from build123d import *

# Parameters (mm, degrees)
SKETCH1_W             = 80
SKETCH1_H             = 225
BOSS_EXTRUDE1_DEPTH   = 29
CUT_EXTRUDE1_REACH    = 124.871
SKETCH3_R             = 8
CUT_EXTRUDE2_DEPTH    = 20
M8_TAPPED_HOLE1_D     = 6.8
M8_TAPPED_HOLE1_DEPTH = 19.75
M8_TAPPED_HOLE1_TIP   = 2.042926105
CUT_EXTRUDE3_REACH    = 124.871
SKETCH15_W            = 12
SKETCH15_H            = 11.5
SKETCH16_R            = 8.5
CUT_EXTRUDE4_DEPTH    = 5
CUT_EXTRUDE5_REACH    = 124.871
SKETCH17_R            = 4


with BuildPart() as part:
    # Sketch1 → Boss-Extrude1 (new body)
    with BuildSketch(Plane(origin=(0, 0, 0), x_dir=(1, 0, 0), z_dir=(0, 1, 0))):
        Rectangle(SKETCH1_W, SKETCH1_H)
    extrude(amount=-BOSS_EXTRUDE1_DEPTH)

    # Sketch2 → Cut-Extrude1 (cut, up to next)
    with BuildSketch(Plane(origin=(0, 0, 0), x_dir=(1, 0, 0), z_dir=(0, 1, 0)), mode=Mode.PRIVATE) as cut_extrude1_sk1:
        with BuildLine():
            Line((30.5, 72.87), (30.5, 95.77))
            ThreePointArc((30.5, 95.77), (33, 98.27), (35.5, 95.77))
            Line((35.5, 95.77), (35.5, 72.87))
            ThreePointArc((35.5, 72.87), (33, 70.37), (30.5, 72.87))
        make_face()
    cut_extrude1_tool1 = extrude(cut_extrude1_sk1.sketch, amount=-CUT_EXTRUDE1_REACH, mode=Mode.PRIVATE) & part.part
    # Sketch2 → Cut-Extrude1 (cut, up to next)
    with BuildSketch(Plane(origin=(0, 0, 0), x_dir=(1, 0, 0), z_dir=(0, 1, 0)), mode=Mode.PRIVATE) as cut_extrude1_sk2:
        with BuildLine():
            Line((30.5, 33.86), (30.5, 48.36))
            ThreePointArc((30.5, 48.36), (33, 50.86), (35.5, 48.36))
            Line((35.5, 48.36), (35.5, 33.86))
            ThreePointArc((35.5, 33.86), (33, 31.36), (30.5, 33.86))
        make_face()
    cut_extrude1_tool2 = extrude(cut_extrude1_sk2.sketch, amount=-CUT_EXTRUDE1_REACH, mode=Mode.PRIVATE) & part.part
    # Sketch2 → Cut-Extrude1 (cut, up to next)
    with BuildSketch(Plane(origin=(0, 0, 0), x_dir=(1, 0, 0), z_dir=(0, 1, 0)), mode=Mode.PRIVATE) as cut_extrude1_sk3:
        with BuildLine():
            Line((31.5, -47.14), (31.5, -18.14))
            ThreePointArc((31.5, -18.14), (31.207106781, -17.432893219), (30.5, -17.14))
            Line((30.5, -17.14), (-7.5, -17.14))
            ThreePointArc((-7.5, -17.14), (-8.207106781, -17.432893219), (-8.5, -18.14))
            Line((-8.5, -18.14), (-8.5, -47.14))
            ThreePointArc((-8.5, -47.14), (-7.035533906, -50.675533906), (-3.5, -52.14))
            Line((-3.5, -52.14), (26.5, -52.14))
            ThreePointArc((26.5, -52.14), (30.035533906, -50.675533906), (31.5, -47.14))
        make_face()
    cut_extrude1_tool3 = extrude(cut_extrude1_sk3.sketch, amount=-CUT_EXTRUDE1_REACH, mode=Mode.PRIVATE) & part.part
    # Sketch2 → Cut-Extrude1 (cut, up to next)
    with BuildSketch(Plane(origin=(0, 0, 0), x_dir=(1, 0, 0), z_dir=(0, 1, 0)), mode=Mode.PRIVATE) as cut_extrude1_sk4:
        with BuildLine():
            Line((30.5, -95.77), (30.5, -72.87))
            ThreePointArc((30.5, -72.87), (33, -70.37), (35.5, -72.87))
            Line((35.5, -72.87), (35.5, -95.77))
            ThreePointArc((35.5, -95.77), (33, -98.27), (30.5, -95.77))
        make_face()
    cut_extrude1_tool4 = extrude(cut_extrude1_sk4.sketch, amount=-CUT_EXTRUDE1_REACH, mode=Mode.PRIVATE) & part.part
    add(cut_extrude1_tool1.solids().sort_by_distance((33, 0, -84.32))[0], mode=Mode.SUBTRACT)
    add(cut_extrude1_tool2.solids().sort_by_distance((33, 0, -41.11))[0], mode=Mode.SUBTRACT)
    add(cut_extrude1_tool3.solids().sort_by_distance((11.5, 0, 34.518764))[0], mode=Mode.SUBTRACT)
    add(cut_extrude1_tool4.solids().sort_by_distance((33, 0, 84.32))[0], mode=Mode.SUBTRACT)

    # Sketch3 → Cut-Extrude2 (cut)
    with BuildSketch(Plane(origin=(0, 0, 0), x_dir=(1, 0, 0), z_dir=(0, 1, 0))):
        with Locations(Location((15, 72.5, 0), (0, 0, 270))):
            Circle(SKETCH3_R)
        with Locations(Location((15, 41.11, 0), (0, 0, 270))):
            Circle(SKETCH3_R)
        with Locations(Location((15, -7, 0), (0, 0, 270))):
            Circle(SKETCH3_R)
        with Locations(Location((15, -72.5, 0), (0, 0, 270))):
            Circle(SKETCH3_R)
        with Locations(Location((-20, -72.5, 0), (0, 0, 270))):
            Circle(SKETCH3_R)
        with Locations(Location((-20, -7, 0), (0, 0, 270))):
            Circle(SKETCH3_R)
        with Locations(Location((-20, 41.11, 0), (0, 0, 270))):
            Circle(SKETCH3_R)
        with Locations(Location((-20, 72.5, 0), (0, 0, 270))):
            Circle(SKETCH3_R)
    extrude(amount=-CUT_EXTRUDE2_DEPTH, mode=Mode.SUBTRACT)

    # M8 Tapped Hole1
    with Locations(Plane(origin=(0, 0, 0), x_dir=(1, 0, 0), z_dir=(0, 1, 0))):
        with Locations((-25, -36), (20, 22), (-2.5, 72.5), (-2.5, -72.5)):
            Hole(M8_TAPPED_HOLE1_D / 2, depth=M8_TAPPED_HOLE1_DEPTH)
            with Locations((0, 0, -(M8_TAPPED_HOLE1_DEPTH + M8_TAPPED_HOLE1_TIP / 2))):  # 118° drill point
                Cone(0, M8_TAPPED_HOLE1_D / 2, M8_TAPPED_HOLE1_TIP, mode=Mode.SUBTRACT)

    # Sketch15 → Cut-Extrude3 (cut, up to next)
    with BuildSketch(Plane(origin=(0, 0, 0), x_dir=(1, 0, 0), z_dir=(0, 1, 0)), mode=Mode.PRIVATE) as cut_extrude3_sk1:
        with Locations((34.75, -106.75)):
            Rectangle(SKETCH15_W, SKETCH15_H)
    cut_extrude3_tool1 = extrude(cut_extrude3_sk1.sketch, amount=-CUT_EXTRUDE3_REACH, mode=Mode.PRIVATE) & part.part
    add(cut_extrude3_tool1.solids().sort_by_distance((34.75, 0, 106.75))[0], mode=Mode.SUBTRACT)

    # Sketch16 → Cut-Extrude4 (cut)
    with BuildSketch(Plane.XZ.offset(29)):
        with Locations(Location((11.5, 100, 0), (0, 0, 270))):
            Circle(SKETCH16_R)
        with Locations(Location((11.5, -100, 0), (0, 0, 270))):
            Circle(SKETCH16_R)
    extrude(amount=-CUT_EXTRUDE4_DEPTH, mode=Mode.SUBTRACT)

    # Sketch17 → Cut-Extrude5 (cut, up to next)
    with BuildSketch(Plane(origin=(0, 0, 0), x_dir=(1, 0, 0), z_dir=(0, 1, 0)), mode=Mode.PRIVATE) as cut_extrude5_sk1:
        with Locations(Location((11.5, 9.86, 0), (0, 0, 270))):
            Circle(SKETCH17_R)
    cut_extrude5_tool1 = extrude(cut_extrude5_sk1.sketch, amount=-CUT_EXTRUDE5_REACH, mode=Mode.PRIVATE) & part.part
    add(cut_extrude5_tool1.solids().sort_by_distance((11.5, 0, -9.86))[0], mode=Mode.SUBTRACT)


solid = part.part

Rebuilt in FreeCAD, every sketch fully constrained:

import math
import FreeCAD as App
import Part
import Sketcher
from FreeCAD import Vector
Q = App.Units.Quantity


def add_polygon(sketch, points):
    """Adds a closed chain of lines whose ends are joined by coincident constraints."""
    first, n = sketch.GeometryCount, len(points)
    for a, b in zip(points, points[1:] + points[:1]):
        sketch.addGeometry(Part.LineSegment(App.Vector(*a, 0), App.Vector(*b, 0)), False)
    for i in range(n):
        sketch.addConstraint(Sketcher.Constraint("Coincident", first + i, 2, first + (i + 1) % n, 1))

doc = App.newDocument("Part")
body = doc.addObject("PartDesign::Body", "Body")

# Sketch on XZ plane
sketch1 = doc.addObject("Sketcher::SketchObject", "Sketch")
body.addObject(sketch1)
sketch1.AttachmentSupport = (doc.XZ_Plane, [""])
sketch1.MapMode = "FlatFace"
add_polygon(sketch1, [(-40, -112.5), (-40, 112.5), (40, 112.5), (40, -112.5)])  # lines 0-3
sketch1.addConstraint(Sketcher.Constraint("Vertical", 0))
sketch1.addConstraint(Sketcher.Constraint("Horizontal", 1))
sketch1.addConstraint(Sketcher.Constraint("Vertical", 2))
sketch1.addConstraint(Sketcher.Constraint("Horizontal", 3))
sketch1.addConstraint(Sketcher.Constraint("Symmetric", 0, 2, 2, 2, -1, 1))
sketch1.addConstraint(Sketcher.Constraint("DistanceX", 1, 1, 1, 2, Q("80 mm")))
sketch1.addConstraint(Sketcher.Constraint("DistanceY", 0, 1, 0, 2, Q("225 mm")))
pad1 = doc.addObject("PartDesign::Pad", "Pad")
body.addObject(pad1)
pad1.Profile = sketch1
pad1.Length = 29

# Sketch on XZ plane
sketch2 = doc.addObject("Sketcher::SketchObject", "Sketch001")
body.addObject(sketch2)
sketch2.AttachmentSupport = (doc.XZ_Plane, [""])
sketch2.MapMode = "FlatFace"
sketch2.addGeometry(Part.LineSegment(Vector(30.5, -95.77, 0), Vector(30.5, -72.87, 0)), False)
sketch2.addGeometry(Part.ArcOfCircle(Part.Circle(Vector(33, -72.87, 0), Vector(0, 0, 1), 2.5), math.radians(0), math.radians(180)), False)
sketch2.addGeometry(Part.LineSegment(Vector(35.5, -72.87, 0), Vector(35.5, -95.77, 0)), False)
sketch2.addGeometry(Part.ArcOfCircle(Part.Circle(Vector(33, -95.77, 0), Vector(0, 0, 1), 2.5), math.radians(180), math.radians(360)), False)
sketch2.addConstraint(Sketcher.Constraint("Tangent", 0, 2, 1, 2))
sketch2.addConstraint(Sketcher.Constraint("Tangent", 1, 1, 2, 1))
sketch2.addConstraint(Sketcher.Constraint("Tangent", 2, 2, 3, 2))
sketch2.addConstraint(Sketcher.Constraint("Tangent", 3, 1, 0, 1))
sketch2.addConstraint(Sketcher.Constraint("Vertical", 0))
sketch2.addConstraint(Sketcher.Constraint("Vertical", 2))
sketch2.addConstraint(Sketcher.Constraint("Radius", 1, Q("2.5 mm")))
sketch2.addConstraint(Sketcher.Constraint("DistanceY", 0, 1, 0, 2, Q("22.9 mm")))
sketch2.addConstraint(Sketcher.Constraint("DistanceX", -1, 1, 1, 3, Q("33 mm")))
sketch2.addConstraint(Sketcher.Constraint("DistanceY", 1, 3, -1, 1, Q("72.87 mm")))
pocket1 = doc.addObject("PartDesign::Pocket", "Pocket")
body.addObject(pocket1)
pocket1.Profile = sketch2
pocket1.Type = "UpToFirst"
pocket1.Reversed = True

# Sketch on XZ plane
sketch3 = doc.addObject("Sketcher::SketchObject", "Sketch002")
body.addObject(sketch3)
sketch3.AttachmentSupport = (doc.XZ_Plane, [""])
sketch3.MapMode = "FlatFace"
sketch3.addGeometry(Part.LineSegment(Vector(30.5, -48.36, 0), Vector(30.5, -33.86, 0)), False)
sketch3.addGeometry(Part.ArcOfCircle(Part.Circle(Vector(33, -33.86, 0), Vector(0, 0, 1), 2.5), math.radians(0), math.radians(180)), False)
sketch3.addGeometry(Part.LineSegment(Vector(35.5, -33.86, 0), Vector(35.5, -48.36, 0)), False)
sketch3.addGeometry(Part.ArcOfCircle(Part.Circle(Vector(33, -48.36, 0), Vector(0, 0, 1), 2.5), math.radians(180), math.radians(360)), False)
sketch3.addConstraint(Sketcher.Constraint("Tangent", 0, 2, 1, 2))
sketch3.addConstraint(Sketcher.Constraint("Tangent", 1, 1, 2, 1))
sketch3.addConstraint(Sketcher.Constraint("Tangent", 2, 2, 3, 2))
sketch3.addConstraint(Sketcher.Constraint("Tangent", 3, 1, 0, 1))
sketch3.addConstraint(Sketcher.Constraint("Vertical", 0))
sketch3.addConstraint(Sketcher.Constraint("Vertical", 2))
sketch3.addConstraint(Sketcher.Constraint("Radius", 1, Q("2.5 mm")))
sketch3.addConstraint(Sketcher.Constraint("DistanceY", 0, 1, 0, 2, Q("14.5 mm")))
sketch3.addConstraint(Sketcher.Constraint("DistanceX", -1, 1, 1, 3, Q("33 mm")))
sketch3.addConstraint(Sketcher.Constraint("DistanceY", 1, 3, -1, 1, Q("33.86 mm")))
pocket2 = doc.addObject("PartDesign::Pocket", "Pocket001")
body.addObject(pocket2)
pocket2.Profile = sketch3
pocket2.Type = "UpToFirst"
pocket2.Reversed = True

# Sketch on XZ plane
sketch4 = doc.addObject("Sketcher::SketchObject", "Sketch003")
body.addObject(sketch4)
sketch4.AttachmentSupport = (doc.XZ_Plane, [""])
sketch4.MapMode = "FlatFace"
sketch4.addGeometry(Part.LineSegment(Vector(31.5, 47.14, 0), Vector(31.5, 18.14, 0)), False)
sketch4.addGeometry(Part.ArcOfCircle(Part.Circle(Vector(30.5, 18.14, 0), Vector(0, 0, 1), 1), math.radians(-90), math.radians(0)), False)
sketch4.addGeometry(Part.LineSegment(Vector(30.5, 17.14, 0), Vector(-7.5, 17.14, 0)), False)
sketch4.addGeometry(Part.ArcOfCircle(Part.Circle(Vector(-7.5, 18.14, 0), Vector(0, 0, 1), 1), math.radians(-180), math.radians(-90)), False)
sketch4.addGeometry(Part.LineSegment(Vector(-8.5, 18.14, 0), Vector(-8.5, 47.14, 0)), False)
sketch4.addGeometry(Part.ArcOfCircle(Part.Circle(Vector(-3.5, 47.14, 0), Vector(0, 0, 1), 5), math.radians(90), math.radians(180)), False)
sketch4.addGeometry(Part.LineSegment(Vector(-3.5, 52.14, 0), Vector(26.5, 52.14, 0)), False)
sketch4.addGeometry(Part.ArcOfCircle(Part.Circle(Vector(26.5, 47.14, 0), Vector(0, 0, 1), 5), math.radians(0), math.radians(90)), False)
sketch4.addConstraint(Sketcher.Constraint("Tangent", 0, 2, 1, 2))
sketch4.addConstraint(Sketcher.Constraint("Tangent", 1, 1, 2, 1))
sketch4.addConstraint(Sketcher.Constraint("Tangent", 2, 2, 3, 2))
sketch4.addConstraint(Sketcher.Constraint("Tangent", 3, 1, 4, 1))
sketch4.addConstraint(Sketcher.Constraint("Tangent", 4, 2, 5, 2))
sketch4.addConstraint(Sketcher.Constraint("Tangent", 5, 1, 6, 1))
sketch4.addConstraint(Sketcher.Constraint("Tangent", 6, 2, 7, 2))
sketch4.addConstraint(Sketcher.Constraint("Tangent", 7, 1, 0, 1))
sketch4.addConstraint(Sketcher.Constraint("Vertical", 0))
sketch4.addConstraint(Sketcher.Constraint("Horizontal", 2))
sketch4.addConstraint(Sketcher.Constraint("Vertical", 4))
sketch4.addConstraint(Sketcher.Constraint("Horizontal", 6))
sketch4.addConstraint(Sketcher.Constraint("Equal", 1, 3))
sketch4.addConstraint(Sketcher.Constraint("Equal", 5, 7))
sketch4.addConstraint(Sketcher.Constraint("Radius", 1, Q("1 mm")))
sketch4.addConstraint(Sketcher.Constraint("Radius", 5, Q("5 mm")))
sketch4.addConstraint(Sketcher.Constraint("DistanceX", 2, 2, 2, 1, Q("38 mm")))
sketch4.addConstraint(Sketcher.Constraint("DistanceY", 0, 2, 0, 1, Q("29 mm")))
sketch4.addConstraint(Sketcher.Constraint("DistanceX", -1, 1, 1, 3, Q("30.5 mm")))
sketch4.addConstraint(Sketcher.Constraint("DistanceY", -1, 1, 1, 3, Q("18.14 mm")))
pocket3 = doc.addObject("PartDesign::Pocket", "Pocket002")
body.addObject(pocket3)
pocket3.Profile = sketch4
pocket3.Type = "UpToFirst"
pocket3.Reversed = True

# Sketch on XZ plane
sketch5 = doc.addObject("Sketcher::SketchObject", "Sketch004")
body.addObject(sketch5)
sketch5.AttachmentSupport = (doc.XZ_Plane, [""])
sketch5.MapMode = "FlatFace"
sketch5.addGeometry(Part.LineSegment(Vector(30.5, 72.87, 0), Vector(30.5, 95.77, 0)), False)
sketch5.addGeometry(Part.ArcOfCircle(Part.Circle(Vector(33, 95.77, 0), Vector(0, 0, 1), 2.5), math.radians(0), math.radians(180)), False)
sketch5.addGeometry(Part.LineSegment(Vector(35.5, 95.77, 0), Vector(35.5, 72.87, 0)), False)
sketch5.addGeometry(Part.ArcOfCircle(Part.Circle(Vector(33, 72.87, 0), Vector(0, 0, 1), 2.5), math.radians(180), math.radians(360)), False)
sketch5.addConstraint(Sketcher.Constraint("Tangent", 0, 2, 1, 2))
sketch5.addConstraint(Sketcher.Constraint("Tangent", 1, 1, 2, 1))
sketch5.addConstraint(Sketcher.Constraint("Tangent", 2, 2, 3, 2))
sketch5.addConstraint(Sketcher.Constraint("Tangent", 3, 1, 0, 1))
sketch5.addConstraint(Sketcher.Constraint("Vertical", 0))
sketch5.addConstraint(Sketcher.Constraint("Vertical", 2))
sketch5.addConstraint(Sketcher.Constraint("Radius", 1, Q("2.5 mm")))
sketch5.addConstraint(Sketcher.Constraint("DistanceY", 0, 1, 0, 2, Q("22.9 mm")))
sketch5.addConstraint(Sketcher.Constraint("DistanceX", -1, 1, 1, 3, Q("33 mm")))
sketch5.addConstraint(Sketcher.Constraint("DistanceY", -1, 1, 1, 3, Q("95.77 mm")))
pocket4 = doc.addObject("PartDesign::Pocket", "Pocket003")
body.addObject(pocket4)
pocket4.Profile = sketch5
pocket4.Type = "UpToFirst"
pocket4.Reversed = True

# Sketch on XZ plane
sketch6 = doc.addObject("Sketcher::SketchObject", "Sketch005")
body.addObject(sketch6)
sketch6.AttachmentSupport = (doc.XZ_Plane, [""])
sketch6.MapMode = "FlatFace"
sketch6.addGeometry(Part.Circle(Vector(15, -72.5, 0), Vector(0, 0, 1), 8), False)
sketch6.addGeometry(Part.Circle(Vector(15, -41.11, 0), Vector(0, 0, 1), 8), False)
sketch6.addGeometry(Part.Circle(Vector(15, 7, 0), Vector(0, 0, 1), 8), False)
sketch6.addGeometry(Part.Circle(Vector(15, 72.5, 0), Vector(0, 0, 1), 8), False)
sketch6.addGeometry(Part.Circle(Vector(-20, 72.5, 0), Vector(0, 0, 1), 8), False)
sketch6.addGeometry(Part.Circle(Vector(-20, 7, 0), Vector(0, 0, 1), 8), False)
sketch6.addGeometry(Part.Circle(Vector(-20, -41.11, 0), Vector(0, 0, 1), 8), False)
sketch6.addGeometry(Part.Circle(Vector(-20, -72.5, 0), Vector(0, 0, 1), 8), False)
sketch6.addConstraint(Sketcher.Constraint("Equal", 0, 1))
sketch6.addConstraint(Sketcher.Constraint("Equal", 1, 2))
sketch6.addConstraint(Sketcher.Constraint("Equal", 2, 3))
sketch6.addConstraint(Sketcher.Constraint("Equal", 3, 4))
sketch6.addConstraint(Sketcher.Constraint("Equal", 4, 5))
sketch6.addConstraint(Sketcher.Constraint("Equal", 5, 6))
sketch6.addConstraint(Sketcher.Constraint("Equal", 6, 7))
sketch6.addConstraint(Sketcher.Constraint("Symmetric", 0, 3, 3, 3, -1))
sketch6.addConstraint(Sketcher.Constraint("Symmetric", 4, 3, 7, 3, -1))
sketch6.addConstraint(Sketcher.Constraint("Horizontal", 3, 3, 4, 3))
sketch6.addConstraint(Sketcher.Constraint("Horizontal", 2, 3, 5, 3))
sketch6.addConstraint(Sketcher.Constraint("Horizontal", 1, 3, 6, 3))
sketch6.addConstraint(Sketcher.Constraint("Vertical", 0, 3, 1, 3))
sketch6.addConstraint(Sketcher.Constraint("Vertical", 1, 3, 2, 3))
sketch6.addConstraint(Sketcher.Constraint("Vertical", 4, 3, 5, 3))
sketch6.addConstraint(Sketcher.Constraint("Vertical", 5, 3, 6, 3))
sketch6.addConstraint(Sketcher.Constraint("Diameter", 0, Q("16 mm")))
sketch6.addConstraint(Sketcher.Constraint("DistanceX", -1, 1, 0, 3, Q("15 mm")))
sketch6.addConstraint(Sketcher.Constraint("DistanceY", -1, 1, 2, 3, Q("7 mm")))
sketch6.addConstraint(Sketcher.Constraint("DistanceX", 4, 3, -1, 1, Q("20 mm")))
sketch6.addConstraint(Sketcher.Constraint("DistanceY", 0, 3, 3, 3, Q("145 mm")))
sketch6.addConstraint(Sketcher.Constraint("DistanceY", 1, 3, -1, 1, Q("41.11 mm")))
pocket5 = doc.addObject("PartDesign::Pocket", "Pocket004")
body.addObject(pocket5)
pocket5.Profile = sketch6
pocket5.Length = 20
pocket5.Reversed = True

# Sketch on XZ plane
sketch7 = doc.addObject("Sketcher::SketchObject", "Sketch006")
body.addObject(sketch7)
sketch7.AttachmentSupport = (doc.XZ_Plane, [""])
sketch7.MapMode = "FlatFace"
sketch7.addGeometry(Part.Circle(Vector(-25, 36, 0), Vector(0, 0, 1), 3.4), False)
sketch7.addGeometry(Part.Circle(Vector(20, -22, 0), Vector(0, 0, 1), 3.4), False)
sketch7.addGeometry(Part.Circle(Vector(-2.5, -72.5, 0), Vector(0, 0, 1), 3.4), False)
sketch7.addGeometry(Part.Circle(Vector(-2.5, 72.5, 0), Vector(0, 0, 1), 3.4), False)
sketch7.addConstraint(Sketcher.Constraint("Equal", 0, 1))
sketch7.addConstraint(Sketcher.Constraint("Equal", 1, 2))
sketch7.addConstraint(Sketcher.Constraint("Equal", 2, 3))
sketch7.addConstraint(Sketcher.Constraint("Symmetric", 2, 3, 3, 3, -1))
sketch7.addConstraint(Sketcher.Constraint("Diameter", 0, Q("6.8 mm")))
sketch7.addConstraint(Sketcher.Constraint("DistanceX", 0, 3, -1, 1, Q("25 mm")))
sketch7.addConstraint(Sketcher.Constraint("DistanceY", -1, 1, 0, 3, Q("36 mm")))
sketch7.addConstraint(Sketcher.Constraint("DistanceX", -1, 1, 1, 3, Q("20 mm")))
sketch7.addConstraint(Sketcher.Constraint("DistanceY", 1, 3, -1, 1, Q("22 mm")))
sketch7.addConstraint(Sketcher.Constraint("DistanceY", 2, 3, 3, 3, Q("145 mm")))
sketch7.addConstraint(Sketcher.Constraint("DistanceX", 2, 3, -1, 1, Q("2.5 mm")))
doc.recompute()
hole = doc.addObject("PartDesign::Hole", "Hole")
body.addObject(hole)
hole.Profile = sketch7
hole.ThreadType = "None"
hole.Diameter = 6.8
hole.DepthType = "Dimension"
hole.Depth = 19.75
hole.DrillPoint = "Angled"
hole.DrillPointAngle = 118
hole.Reversed = True

# Sketch on XZ plane
sketch8 = doc.addObject("Sketcher::SketchObject", "Sketch007")
body.addObject(sketch8)
sketch8.AttachmentSupport = (doc.XZ_Plane, [""])
sketch8.MapMode = "FlatFace"
add_polygon(sketch8, [(28.75, 101), (28.75, 112.5), (40.75, 112.5), (40.75, 101)])  # lines 0-3
sketch8.addConstraint(Sketcher.Constraint("Vertical", 0))
sketch8.addConstraint(Sketcher.Constraint("Horizontal", 1))
sketch8.addConstraint(Sketcher.Constraint("Vertical", 2))
sketch8.addConstraint(Sketcher.Constraint("Horizontal", 3))
sketch8.addConstraint(Sketcher.Constraint("DistanceX", 1, 1, 1, 2, Q("12 mm")))
sketch8.addConstraint(Sketcher.Constraint("DistanceY", 0, 1, 0, 2, Q("11.5 mm")))
sketch8.addConstraint(Sketcher.Constraint("DistanceY", -1, 1, 2, 2, Q("101 mm")))
sketch8.addConstraint(Sketcher.Constraint("DistanceX", -1, 1, 0, 2, Q("28.75 mm")))
pocket6 = doc.addObject("PartDesign::Pocket", "Pocket005")
body.addObject(pocket6)
pocket6.Profile = sketch8
pocket6.Type = "UpToFirst"
pocket6.Reversed = True

# Sketch on XZ plane
sketch9 = doc.addObject("Sketcher::SketchObject", "Sketch008")
body.addObject(sketch9)
sketch9.AttachmentSupport = (doc.XZ_Plane, [""])
sketch9.MapMode = "FlatFace"
sketch9.AttachmentOffset = App.Placement(Vector(0, 0, 29), App.Rotation())
sketch9.addGeometry(Part.Circle(Vector(11.5, 100, 0), Vector(0, 0, 1), 8.5), False)
sketch9.addGeometry(Part.Circle(Vector(11.5, -100, 0), Vector(0, 0, 1), 8.5), False)
sketch9.addConstraint(Sketcher.Constraint("Equal", 0, 1))
sketch9.addConstraint(Sketcher.Constraint("Symmetric", 0, 3, 1, 3, -1))
sketch9.addConstraint(Sketcher.Constraint("Diameter", 0, Q("17 mm")))
sketch9.addConstraint(Sketcher.Constraint("DistanceY", -1, 1, 0, 3, Q("100 mm")))
sketch9.addConstraint(Sketcher.Constraint("DistanceX", -1, 1, 0, 3, Q("11.5 mm")))
pocket7 = doc.addObject("PartDesign::Pocket", "Pocket006")
body.addObject(pocket7)
pocket7.Profile = sketch9
pocket7.Length = 5

# Sketch on XZ plane
sketch10 = doc.addObject("Sketcher::SketchObject", "Sketch009")
body.addObject(sketch10)
sketch10.AttachmentSupport = (doc.XZ_Plane, [""])
sketch10.MapMode = "FlatFace"
sketch10.addGeometry(Part.Circle(Vector(11.5, -9.86, 0), Vector(0, 0, 1), 4), False)
sketch10.addConstraint(Sketcher.Constraint("Diameter", 0, Q("8 mm")))
sketch10.addConstraint(Sketcher.Constraint("DistanceX", -1, 1, 0, 3, Q("11.5 mm")))
sketch10.addConstraint(Sketcher.Constraint("DistanceY", 0, 3, -1, 1, Q("9.86 mm")))
pocket8 = doc.addObject("PartDesign::Pocket", "Pocket007")
body.addObject(pocket8)
pocket8.Profile = sketch10
pocket8.Type = "UpToFirst"
pocket8.Reversed = True

doc.recompute()
